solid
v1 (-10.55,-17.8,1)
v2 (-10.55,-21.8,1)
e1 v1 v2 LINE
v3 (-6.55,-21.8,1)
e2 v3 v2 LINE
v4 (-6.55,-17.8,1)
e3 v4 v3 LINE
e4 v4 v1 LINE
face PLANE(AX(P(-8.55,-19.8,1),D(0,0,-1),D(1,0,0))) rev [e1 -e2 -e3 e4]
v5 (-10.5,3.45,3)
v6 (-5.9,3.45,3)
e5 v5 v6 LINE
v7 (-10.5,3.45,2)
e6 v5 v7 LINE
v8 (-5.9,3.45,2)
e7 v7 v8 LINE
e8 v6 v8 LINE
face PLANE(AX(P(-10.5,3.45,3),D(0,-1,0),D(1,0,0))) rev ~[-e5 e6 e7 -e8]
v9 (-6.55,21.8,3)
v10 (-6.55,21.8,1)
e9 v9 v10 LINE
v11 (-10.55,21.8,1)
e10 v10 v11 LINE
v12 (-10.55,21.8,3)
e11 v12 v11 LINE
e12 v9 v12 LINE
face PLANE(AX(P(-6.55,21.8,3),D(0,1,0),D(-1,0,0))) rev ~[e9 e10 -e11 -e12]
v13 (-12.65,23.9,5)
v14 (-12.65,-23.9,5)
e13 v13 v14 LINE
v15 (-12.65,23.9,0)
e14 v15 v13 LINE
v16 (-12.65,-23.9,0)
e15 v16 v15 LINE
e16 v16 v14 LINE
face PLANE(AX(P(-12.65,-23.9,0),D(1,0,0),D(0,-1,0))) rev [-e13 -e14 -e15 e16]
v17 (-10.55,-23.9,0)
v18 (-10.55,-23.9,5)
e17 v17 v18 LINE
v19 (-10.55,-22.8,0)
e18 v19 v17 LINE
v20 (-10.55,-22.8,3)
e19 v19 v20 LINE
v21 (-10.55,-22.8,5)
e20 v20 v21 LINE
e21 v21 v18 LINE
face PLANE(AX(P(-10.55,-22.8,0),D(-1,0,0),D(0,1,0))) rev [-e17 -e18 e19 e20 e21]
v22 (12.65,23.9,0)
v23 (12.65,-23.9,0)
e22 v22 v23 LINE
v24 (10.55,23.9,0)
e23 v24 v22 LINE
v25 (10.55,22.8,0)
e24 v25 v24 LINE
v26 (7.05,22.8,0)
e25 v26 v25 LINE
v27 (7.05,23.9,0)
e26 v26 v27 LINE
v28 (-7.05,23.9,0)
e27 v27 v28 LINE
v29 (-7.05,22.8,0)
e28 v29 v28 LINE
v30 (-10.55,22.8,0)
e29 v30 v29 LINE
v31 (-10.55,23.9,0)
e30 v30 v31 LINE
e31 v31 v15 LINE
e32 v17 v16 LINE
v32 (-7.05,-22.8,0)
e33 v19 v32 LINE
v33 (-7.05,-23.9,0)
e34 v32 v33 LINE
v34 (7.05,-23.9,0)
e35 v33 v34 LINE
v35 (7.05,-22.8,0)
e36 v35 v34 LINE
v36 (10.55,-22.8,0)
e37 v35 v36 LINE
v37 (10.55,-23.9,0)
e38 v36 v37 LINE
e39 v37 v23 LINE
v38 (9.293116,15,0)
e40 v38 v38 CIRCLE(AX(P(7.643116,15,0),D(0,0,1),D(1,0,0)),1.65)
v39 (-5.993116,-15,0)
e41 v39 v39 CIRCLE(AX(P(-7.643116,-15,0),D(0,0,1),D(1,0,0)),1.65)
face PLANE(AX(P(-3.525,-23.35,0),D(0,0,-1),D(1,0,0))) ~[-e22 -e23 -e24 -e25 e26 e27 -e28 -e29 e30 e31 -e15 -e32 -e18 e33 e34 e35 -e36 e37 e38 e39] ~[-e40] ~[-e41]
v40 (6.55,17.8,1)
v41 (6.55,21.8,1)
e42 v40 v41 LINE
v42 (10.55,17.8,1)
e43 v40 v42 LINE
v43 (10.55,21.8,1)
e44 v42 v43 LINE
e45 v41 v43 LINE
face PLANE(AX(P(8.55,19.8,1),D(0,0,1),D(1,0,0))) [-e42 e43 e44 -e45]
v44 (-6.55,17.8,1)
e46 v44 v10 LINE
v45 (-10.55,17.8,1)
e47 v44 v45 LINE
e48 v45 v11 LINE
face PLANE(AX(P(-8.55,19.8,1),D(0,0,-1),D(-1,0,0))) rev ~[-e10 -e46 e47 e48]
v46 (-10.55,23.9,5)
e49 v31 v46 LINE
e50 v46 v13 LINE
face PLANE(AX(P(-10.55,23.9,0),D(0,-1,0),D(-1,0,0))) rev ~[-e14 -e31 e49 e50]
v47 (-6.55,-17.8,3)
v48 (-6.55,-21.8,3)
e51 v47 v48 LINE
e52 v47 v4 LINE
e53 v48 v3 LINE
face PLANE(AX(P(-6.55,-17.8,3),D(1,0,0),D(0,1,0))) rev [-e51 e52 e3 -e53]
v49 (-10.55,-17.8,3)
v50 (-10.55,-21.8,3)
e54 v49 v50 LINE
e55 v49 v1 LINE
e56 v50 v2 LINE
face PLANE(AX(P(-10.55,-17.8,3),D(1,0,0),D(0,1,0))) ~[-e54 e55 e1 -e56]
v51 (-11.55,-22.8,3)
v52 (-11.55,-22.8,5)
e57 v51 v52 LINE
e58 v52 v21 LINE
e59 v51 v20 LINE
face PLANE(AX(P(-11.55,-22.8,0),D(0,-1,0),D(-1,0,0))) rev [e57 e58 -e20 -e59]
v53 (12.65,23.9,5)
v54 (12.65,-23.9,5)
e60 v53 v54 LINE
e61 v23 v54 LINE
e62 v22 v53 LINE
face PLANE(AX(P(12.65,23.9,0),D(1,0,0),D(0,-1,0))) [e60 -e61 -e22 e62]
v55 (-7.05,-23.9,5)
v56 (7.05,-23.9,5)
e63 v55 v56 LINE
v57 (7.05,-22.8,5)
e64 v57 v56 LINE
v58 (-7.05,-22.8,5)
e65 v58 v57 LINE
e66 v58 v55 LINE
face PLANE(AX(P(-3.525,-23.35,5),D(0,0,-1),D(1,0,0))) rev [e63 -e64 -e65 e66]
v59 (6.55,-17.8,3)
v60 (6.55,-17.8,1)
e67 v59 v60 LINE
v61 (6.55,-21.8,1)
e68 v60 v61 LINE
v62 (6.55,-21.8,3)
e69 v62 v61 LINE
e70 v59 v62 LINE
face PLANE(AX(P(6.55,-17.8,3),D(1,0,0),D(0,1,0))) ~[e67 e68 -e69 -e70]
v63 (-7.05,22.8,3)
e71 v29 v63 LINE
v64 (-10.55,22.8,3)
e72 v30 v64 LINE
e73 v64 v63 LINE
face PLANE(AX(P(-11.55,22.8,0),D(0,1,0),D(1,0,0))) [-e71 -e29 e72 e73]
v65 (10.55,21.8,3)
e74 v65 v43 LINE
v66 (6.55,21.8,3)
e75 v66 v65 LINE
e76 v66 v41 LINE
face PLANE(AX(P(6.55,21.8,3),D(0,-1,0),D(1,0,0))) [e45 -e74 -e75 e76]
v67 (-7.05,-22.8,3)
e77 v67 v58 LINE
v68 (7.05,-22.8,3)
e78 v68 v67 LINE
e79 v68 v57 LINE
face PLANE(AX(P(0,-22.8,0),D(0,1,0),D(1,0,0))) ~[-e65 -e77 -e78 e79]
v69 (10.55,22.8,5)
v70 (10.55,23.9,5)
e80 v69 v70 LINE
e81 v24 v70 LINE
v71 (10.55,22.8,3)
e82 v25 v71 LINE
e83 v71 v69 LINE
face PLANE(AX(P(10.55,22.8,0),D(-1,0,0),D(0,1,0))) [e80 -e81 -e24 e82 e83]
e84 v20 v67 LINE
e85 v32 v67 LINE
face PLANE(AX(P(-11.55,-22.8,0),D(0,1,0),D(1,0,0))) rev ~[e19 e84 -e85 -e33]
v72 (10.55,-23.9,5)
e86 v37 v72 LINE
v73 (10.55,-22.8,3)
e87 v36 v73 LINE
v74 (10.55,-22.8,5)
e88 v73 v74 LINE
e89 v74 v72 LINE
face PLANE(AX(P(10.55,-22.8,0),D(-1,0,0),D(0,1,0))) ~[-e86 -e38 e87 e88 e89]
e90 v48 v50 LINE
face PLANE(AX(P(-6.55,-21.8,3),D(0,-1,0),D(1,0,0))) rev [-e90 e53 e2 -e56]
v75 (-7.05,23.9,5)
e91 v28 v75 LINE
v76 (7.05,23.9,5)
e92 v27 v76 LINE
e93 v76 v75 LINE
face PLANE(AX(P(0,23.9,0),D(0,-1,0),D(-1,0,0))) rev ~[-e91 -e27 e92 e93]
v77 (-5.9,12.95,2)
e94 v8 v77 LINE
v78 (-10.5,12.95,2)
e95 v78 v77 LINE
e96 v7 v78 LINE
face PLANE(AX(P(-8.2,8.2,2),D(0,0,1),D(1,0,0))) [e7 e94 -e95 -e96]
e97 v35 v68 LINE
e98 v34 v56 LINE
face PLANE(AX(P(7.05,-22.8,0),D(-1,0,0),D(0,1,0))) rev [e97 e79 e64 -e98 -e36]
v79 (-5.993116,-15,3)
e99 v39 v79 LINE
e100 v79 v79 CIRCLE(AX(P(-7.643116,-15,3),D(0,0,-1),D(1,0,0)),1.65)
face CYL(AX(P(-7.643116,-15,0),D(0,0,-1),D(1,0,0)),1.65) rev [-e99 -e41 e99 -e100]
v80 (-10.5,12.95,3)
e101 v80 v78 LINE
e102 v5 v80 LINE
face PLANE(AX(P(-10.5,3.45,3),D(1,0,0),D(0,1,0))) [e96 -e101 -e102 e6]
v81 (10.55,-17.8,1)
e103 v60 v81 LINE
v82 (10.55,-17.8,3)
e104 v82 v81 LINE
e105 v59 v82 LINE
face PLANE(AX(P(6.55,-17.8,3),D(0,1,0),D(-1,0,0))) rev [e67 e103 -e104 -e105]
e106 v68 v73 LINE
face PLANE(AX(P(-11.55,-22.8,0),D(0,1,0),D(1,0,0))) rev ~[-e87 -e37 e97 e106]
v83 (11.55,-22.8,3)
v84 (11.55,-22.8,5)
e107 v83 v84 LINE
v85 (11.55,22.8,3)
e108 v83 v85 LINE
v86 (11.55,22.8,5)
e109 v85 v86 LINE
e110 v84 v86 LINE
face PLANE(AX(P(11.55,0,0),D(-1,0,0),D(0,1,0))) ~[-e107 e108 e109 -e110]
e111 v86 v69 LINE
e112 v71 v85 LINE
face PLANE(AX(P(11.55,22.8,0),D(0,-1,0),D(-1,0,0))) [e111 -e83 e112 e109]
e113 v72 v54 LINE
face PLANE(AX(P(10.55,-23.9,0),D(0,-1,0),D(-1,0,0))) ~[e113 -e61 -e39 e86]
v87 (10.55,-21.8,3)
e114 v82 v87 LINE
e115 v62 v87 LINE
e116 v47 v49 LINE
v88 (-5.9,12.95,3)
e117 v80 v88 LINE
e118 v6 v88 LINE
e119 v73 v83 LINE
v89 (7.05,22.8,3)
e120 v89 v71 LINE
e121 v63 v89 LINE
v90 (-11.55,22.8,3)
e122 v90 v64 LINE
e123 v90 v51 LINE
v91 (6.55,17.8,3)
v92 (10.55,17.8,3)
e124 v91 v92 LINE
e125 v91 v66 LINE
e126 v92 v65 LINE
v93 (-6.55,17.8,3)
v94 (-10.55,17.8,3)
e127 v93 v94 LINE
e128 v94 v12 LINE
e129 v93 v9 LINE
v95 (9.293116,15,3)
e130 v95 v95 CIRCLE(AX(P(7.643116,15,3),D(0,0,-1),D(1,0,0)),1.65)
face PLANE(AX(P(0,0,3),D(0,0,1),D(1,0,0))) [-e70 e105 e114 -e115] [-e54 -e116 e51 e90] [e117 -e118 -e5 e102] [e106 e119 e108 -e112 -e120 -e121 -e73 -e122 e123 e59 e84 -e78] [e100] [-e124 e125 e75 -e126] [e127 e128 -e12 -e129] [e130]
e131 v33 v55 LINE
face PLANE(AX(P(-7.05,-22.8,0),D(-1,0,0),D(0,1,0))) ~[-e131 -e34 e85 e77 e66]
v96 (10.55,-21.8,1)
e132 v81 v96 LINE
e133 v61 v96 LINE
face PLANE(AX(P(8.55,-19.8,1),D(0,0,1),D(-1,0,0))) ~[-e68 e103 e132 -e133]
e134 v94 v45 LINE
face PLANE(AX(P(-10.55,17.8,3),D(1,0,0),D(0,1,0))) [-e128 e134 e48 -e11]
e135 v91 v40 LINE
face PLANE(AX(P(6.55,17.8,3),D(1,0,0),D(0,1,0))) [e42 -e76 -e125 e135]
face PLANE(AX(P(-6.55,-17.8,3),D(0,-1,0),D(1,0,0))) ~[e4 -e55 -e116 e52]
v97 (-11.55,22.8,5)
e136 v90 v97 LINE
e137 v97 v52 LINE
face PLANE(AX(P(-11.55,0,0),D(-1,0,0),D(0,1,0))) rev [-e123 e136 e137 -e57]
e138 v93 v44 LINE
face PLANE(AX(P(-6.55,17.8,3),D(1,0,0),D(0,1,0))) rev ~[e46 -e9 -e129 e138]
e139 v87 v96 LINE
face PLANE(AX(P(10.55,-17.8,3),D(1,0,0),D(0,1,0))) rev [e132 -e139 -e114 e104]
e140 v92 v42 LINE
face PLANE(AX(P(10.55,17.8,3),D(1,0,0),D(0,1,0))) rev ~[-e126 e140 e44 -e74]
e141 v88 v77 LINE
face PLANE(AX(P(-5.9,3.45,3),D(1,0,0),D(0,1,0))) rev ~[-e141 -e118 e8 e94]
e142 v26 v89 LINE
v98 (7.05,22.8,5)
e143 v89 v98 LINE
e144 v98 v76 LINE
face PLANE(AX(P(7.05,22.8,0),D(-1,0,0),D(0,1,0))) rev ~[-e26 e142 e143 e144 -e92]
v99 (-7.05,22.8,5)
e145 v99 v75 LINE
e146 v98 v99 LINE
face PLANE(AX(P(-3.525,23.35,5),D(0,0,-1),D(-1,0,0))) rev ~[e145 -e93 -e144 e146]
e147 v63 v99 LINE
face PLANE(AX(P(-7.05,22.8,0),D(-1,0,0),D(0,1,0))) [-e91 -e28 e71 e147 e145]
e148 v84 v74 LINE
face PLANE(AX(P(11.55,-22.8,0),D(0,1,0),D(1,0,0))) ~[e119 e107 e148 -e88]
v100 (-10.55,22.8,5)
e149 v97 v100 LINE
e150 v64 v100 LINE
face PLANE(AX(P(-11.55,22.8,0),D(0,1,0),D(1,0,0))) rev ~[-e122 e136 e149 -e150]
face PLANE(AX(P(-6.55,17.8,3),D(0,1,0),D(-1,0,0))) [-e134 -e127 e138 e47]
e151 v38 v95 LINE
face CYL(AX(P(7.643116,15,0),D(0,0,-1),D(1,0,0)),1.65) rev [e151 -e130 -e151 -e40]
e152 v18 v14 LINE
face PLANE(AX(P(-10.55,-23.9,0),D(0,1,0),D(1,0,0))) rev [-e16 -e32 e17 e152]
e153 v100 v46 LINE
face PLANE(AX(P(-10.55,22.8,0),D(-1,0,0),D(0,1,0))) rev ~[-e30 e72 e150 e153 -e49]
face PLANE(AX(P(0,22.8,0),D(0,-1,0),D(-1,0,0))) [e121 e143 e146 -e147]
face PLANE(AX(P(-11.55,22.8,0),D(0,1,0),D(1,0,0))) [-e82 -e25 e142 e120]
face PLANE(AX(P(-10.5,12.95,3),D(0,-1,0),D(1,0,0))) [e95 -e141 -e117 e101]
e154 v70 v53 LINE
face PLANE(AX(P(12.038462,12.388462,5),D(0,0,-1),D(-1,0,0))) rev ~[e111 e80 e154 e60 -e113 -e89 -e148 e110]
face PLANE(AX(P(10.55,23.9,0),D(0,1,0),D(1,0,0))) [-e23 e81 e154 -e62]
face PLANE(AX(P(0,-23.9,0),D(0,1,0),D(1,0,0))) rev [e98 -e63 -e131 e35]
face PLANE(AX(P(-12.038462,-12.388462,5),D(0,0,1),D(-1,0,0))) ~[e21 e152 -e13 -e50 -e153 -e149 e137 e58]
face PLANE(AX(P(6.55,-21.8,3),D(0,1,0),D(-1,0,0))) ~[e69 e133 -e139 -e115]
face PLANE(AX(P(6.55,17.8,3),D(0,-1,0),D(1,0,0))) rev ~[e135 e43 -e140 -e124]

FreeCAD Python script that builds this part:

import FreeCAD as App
import Part
import Sketcher

V = App.Vector


def add_polygon(sketch, points):
    """Adds a closed chain of lines whose ends are joined by coincident constraints."""
    first, n = sketch.GeometryCount, len(points)
    for a, b in zip(points, points[1:] + points[:1]):
        sketch.addGeometry(Part.LineSegment(App.Vector(*a, 0), App.Vector(*b, 0)), False)
    for i in range(n):
        sketch.addConstraint(Sketcher.Constraint("Coincident", first + i, 2, first + (i + 1) % n, 1))

doc = App.newDocument("Part")
body = doc.addObject("PartDesign::Body", "Body")

sketch1 = body.newObject("Sketcher::SketchObject", "Sketch")
sketch1.AttachmentSupport = (doc.getObject("XY_Plane"), [""])
sketch1.MapMode = "FlatFace"
add_polygon(sketch1, [(-10.55, 21.8), (-10.55, -21.8), (10.55, -21.8), (10.55, 21.8)])
sketch1.addConstraint(Sketcher.Constraint("Vertical", 0))
sketch1.addConstraint(Sketcher.Constraint("Horizontal", 1))
sketch1.addConstraint(Sketcher.Constraint("Vertical", 2))
sketch1.addConstraint(Sketcher.Constraint("Horizontal", 3))
sketch1.addConstraint(Sketcher.Constraint("Symmetric", 0, 2, 2, 2, -1, 1))
sketch1.addConstraint(Sketcher.Constraint("DistanceX", 1, 1, 1, 2, 21.1))
sketch1.addConstraint(Sketcher.Constraint("DistanceY", 0, 2, 0, 1, 43.6))
pad1 = body.newObject("PartDesign::Pad", "Pad")
pad1.Profile = sketch1
pad1.Length = 3

sketch2 = body.newObject("Sketcher::SketchObject", "Sketch001")
sketch2.AttachmentSupport = (doc.getObject("XY_Plane"), [""])
sketch2.MapMode = "FlatFace"
add_polygon(sketch2, [(-11.55, 22.8), (-11.55, -22.8), (11.55, -22.8), (11.55, 22.8)])
sketch2.addConstraint(Sketcher.Constraint("Vertical", 0))
sketch2.addConstraint(Sketcher.Constraint("Horizontal", 1))
sketch2.addConstraint(Sketcher.Constraint("Vertical", 2))
sketch2.addConstraint(Sketcher.Constraint("Horizontal", 3))
sketch2.addConstraint(Sketcher.Constraint("Symmetric", 0, 2, 2, 2, -1, 1))
sketch2.addConstraint(Sketcher.Constraint("DistanceX", 1, 1, 1, 2, 23.1))
sketch2.addConstraint(Sketcher.Constraint("DistanceY", 0, 2, 0, 1, 45.6))
pad2 = body.newObject("PartDesign::Pad", "Pad001")
pad2.Profile = sketch2
pad2.Length = 3

sketch3 = body.newObject("Sketcher::SketchObject", "Sketch002")
sketch3.AttachmentSupport = (doc.getObject("XY_Plane"), [""])
sketch3.MapMode = "FlatFace"
add_polygon(sketch3, [(0, 23.9), (0, 22.8), (7.05, 22.8), (7.05, 23.9)])
add_polygon(sketch3, [(10.55, 22.8), (11.55, 22.8), (11.55, 0), (12.65, 0), (12.65, 23.9), (10.55, 23.9)])
sketch3.addConstraint(Sketcher.Constraint("Vertical", 0))
sketch3.addConstraint(Sketcher.Constraint("Horizontal", 1))
sketch3.addConstraint(Sketcher.Constraint("Vertical", 2))
sketch3.addConstraint(Sketcher.Constraint("Horizontal", 3))
sketch3.addConstraint(Sketcher.Constraint("Horizontal", 4))
sketch3.addConstraint(Sketcher.Constraint("Vertical", 5))
sketch3.addConstraint(Sketcher.Constraint("Horizontal", 6))
sketch3.addConstraint(Sketcher.Constraint("Vertical", 7))
sketch3.addConstraint(Sketcher.Constraint("Horizontal", 8))
sketch3.addConstraint(Sketcher.Constraint("Vertical", 9))
sketch3.addConstraint(Sketcher.Constraint("PointOnObject", 0, 2, -2))
sketch3.addConstraint(Sketcher.Constraint("PointOnObject", 5, 2, -1))
sketch3.addConstraint(Sketcher.Constraint("Horizontal", 1, 2, 4, 2))
sketch3.addConstraint(Sketcher.Constraint("Horizontal", 3, 2, 7, 2))
sketch3.addConstraint(Sketcher.Constraint("Equal", 6, 0))
sketch3.addConstraint(Sketcher.Constraint("DistanceX", 4, 1, 4, 2, 1.0))
sketch3.addConstraint(Sketcher.Constraint("DistanceX", 6, 1, 6, 2, 1.1))
sketch3.addConstraint(Sketcher.Constraint("DistanceY", 5, 2, 5, 1, 22.8))
sketch3.addConstraint(Sketcher.Constraint("DistanceX", 1, 1, 1, 2, 7.05))
sketch3.addConstraint(Sketcher.Constraint("DistanceX", 1, 2, 4, 2, 4.5))
pad3 = body.newObject("PartDesign::Pad", "Pad002")
pad3.Profile = sketch3
pad3.Length = 5

sketch4 = body.newObject("Sketcher::SketchObject", "Sketch003")
sketch4.AttachmentSupport = (doc.getObject("XY_Plane"), [""])
sketch4.MapMode = "FlatFace"
add_polygon(sketch4, [(0, 23.9), (0, 22.8), (-7.05, 22.8), (-7.05, 23.9)])
add_polygon(sketch4, [(-10.55, 22.8), (-11.55, 22.8), (-11.55, 0), (-12.65, 0), (-12.65, 23.9), (-10.55, 23.9)])
sketch4.addConstraint(Sketcher.Constraint("Vertical", 0))
sketch4.addConstraint(Sketcher.Constraint("Horizontal", 1))
sketch4.addConstraint(Sketcher.Constraint("Vertical", 2))
sketch4.addConstraint(Sketcher.Constraint("Horizontal", 3))
sketch4.addConstraint(Sketcher.Constraint("Horizontal", 4))
sketch4.addConstraint(Sketcher.Constraint("Vertical", 5))
sketch4.addConstraint(Sketcher.Constraint("Horizontal", 6))
sketch4.addConstraint(Sketcher.Constraint("Vertical", 7))
sketch4.addConstraint(Sketcher.Constraint("Horizontal", 8))
sketch4.addConstraint(Sketcher.Constraint("Vertical", 9))
sketch4.addConstraint(Sketcher.Constraint("PointOnObject", 0, 2, -2))
sketch4.addConstraint(Sketcher.Constraint("PointOnObject", 5, 2, -1))
sketch4.addConstraint(Sketcher.Constraint("Horizontal", 1, 2, 4, 2))
sketch4.addConstraint(Sketcher.Constraint("Horizontal", 3, 2, 7, 2))
sketch4.addConstraint(Sketcher.Constraint("Equal", 6, 0))
sketch4.addConstraint(Sketcher.Constraint("DistanceX", 4, 2, 4, 1, 1.0))
sketch4.addConstraint(Sketcher.Constraint("DistanceX", 6, 2, 6, 1, 1.1))
sketch4.addConstraint(Sketcher.Constraint("DistanceY", 5, 2, 5, 1, 22.8))
sketch4.addConstraint(Sketcher.Constraint("DistanceX", 1, 2, 1, 1, 7.05))
sketch4.addConstraint(Sketcher.Constraint("DistanceX", 4, 2, 1, 2, 4.5))
pad4 = body.newObject("PartDesign::Pad", "Pad003")
pad4.Profile = sketch4
pad4.Length = 5
doc.recompute()

mirrored = body.newObject("PartDesign::Mirrored", "Mirrored")
mirrored.Originals = [pad3, pad4]
mirrored.MirrorPlane = (doc.getObject("XZ_Plane"), [""])
body.Tip = mirrored

sketch5 = body.newObject("Sketcher::SketchObject", "Sketch004")
sketch5.AttachmentSupport = (doc.getObject("XY_Plane"), [""])
sketch5.MapMode = "FlatFace"
sketch5.AttachmentOffset = App.Placement(V(0, 0, 3), App.Rotation())
add_polygon(sketch5, [(-10.5, 12.95), (-10.5, 3.45), (-5.9, 3.45), (-5.9, 12.95)])
sketch5.addConstraint(Sketcher.Constraint("Vertical", 0))
sketch5.addConstraint(Sketcher.Constraint("Horizontal", 1))
sketch5.addConstraint(Sketcher.Constraint("Vertical", 2))
sketch5.addConstraint(Sketcher.Constraint("Horizontal", 3))
sketch5.addConstraint(Sketcher.Constraint("DistanceX", 1, 1, 1, 2, 4.6))
sketch5.addConstraint(Sketcher.Constraint("DistanceY", 0, 2, 0, 1, 9.5))
sketch5.addConstraint(Sketcher.Constraint("DistanceX", 0, 2, -1, 1, 10.5))
sketch5.addConstraint(Sketcher.Constraint("DistanceY", -1, 1, 0, 2, 3.45))
pocket1 = body.newObject("PartDesign::Pocket", "Pocket")
pocket1.Profile = sketch5
pocket1.Length = 1

sketch6 = body.newObject("Sketcher::SketchObject", "Sketch005")
sketch6.AttachmentSupport = (doc.getObject("XY_Plane"), [""])
sketch6.MapMode = "FlatFace"
sketch6.addGeometry(Part.Circle(V(7.643116, 15, 0), V(0, 0, 1), 1.65), False)
sketch6.addGeometry(Part.Circle(V(-7.643116, -15, 0), V(0, 0, 1), 1.65), False)
sketch6.addConstraint(Sketcher.Constraint("Equal", 0, 1))
sketch6.addConstraint(Sketcher.Constraint("Symmetric", 0, 3, 1, 3, -1, 1))
sketch6.addConstraint(Sketcher.Constraint("Diameter", 0, 3.3))
sketch6.addConstraint(Sketcher.Constraint("DistanceY", -1, 1, 0, 3, 15.0))
sketch6.addConstraint(Sketcher.Constraint("DistanceX", -1, 1, 0, 3, 7.643116))
pocket2 = body.newObject("PartDesign::Pocket", "Pocket001")
pocket2.Profile = sketch6
pocket2.Type = "ThroughAll"
pocket2.Midplane = True

sketch7 = body.newObject("Sketcher::SketchObject", "Sketch006")
sketch7.AttachmentSupport = (doc.getObject("XY_Plane"), [""])
sketch7.MapMode = "FlatFace"
sketch7.AttachmentOffset = App.Placement(V(0, 0, 3), App.Rotation())
add_polygon(sketch7, [(6.55, 21.8), (6.55, 17.8), (10.55, 17.8), (10.55, 21.8)])
sketch7.addConstraint(Sketcher.Constraint("Vertical", 0))
sketch7.addConstraint(Sketcher.Constraint("Horizontal", 1))
sketch7.addConstraint(Sketcher.Constraint("Vertical", 2))
sketch7.addConstraint(Sketcher.Constraint("Horizontal", 3))
sketch7.addConstraint(Sketcher.Constraint("Equal", 3, 0))
sketch7.addConstraint(Sketcher.Constraint("DistanceX", 1, 1, 1, 2, 4.0))
sketch7.addConstraint(Sketcher.Constraint("DistanceY", -1, 1, 0, 2, 17.8))
sketch7.addConstraint(Sketcher.Constraint("DistanceX", -1, 1, 0, 2, 6.55))
pocket3 = body.newObject("PartDesign::Pocket", "Pocket002")
pocket3.Profile = sketch7
pocket3.Length = 2

sketch8 = body.newObject("Sketcher::SketchObject", "Sketch007")
sketch8.AttachmentSupport = (doc.getObject("XY_Plane"), [""])
sketch8.MapMode = "FlatFace"
sketch8.AttachmentOffset = App.Placement(V(0, 0, 3), App.Rotation())
add_polygon(sketch8, [(-6.55, 21.8), (-6.55, 17.8), (-10.55, 17.8), (-10.55, 21.8)])
sketch8.addConstraint(Sketcher.Constraint("Vertical", 0))
sketch8.addConstraint(Sketcher.Constraint("Horizontal", 1))
sketch8.addConstraint(Sketcher.Constraint("Vertical", 2))
sketch8.addConstraint(Sketcher.Constraint("Horizontal", 3))
sketch8.addConstraint(Sketcher.Constraint("Equal", 3, 0))
sketch8.addConstraint(Sketcher.Constraint("DistanceX", 1, 2, 1, 1, 4.0))
sketch8.addConstraint(Sketcher.Constraint("DistanceY", -1, 1, 0, 2, 17.8))
sketch8.addConstraint(Sketcher.Constraint("DistanceX", 0, 2, -1, 1, 6.55))
pocket4 = body.newObject("PartDesign::Pocket", "Pocket003")
pocket4.Profile = sketch8
pocket4.Length = 2
doc.recompute()

mirrored2 = body.newObject("PartDesign::Mirrored", "Mirrored001")
mirrored2.Originals = [pocket3, pocket4]
mirrored2.MirrorPlane = (doc.getObject("XZ_Plane"), [""])
body.Tip = mirrored2

doc.recompute()
